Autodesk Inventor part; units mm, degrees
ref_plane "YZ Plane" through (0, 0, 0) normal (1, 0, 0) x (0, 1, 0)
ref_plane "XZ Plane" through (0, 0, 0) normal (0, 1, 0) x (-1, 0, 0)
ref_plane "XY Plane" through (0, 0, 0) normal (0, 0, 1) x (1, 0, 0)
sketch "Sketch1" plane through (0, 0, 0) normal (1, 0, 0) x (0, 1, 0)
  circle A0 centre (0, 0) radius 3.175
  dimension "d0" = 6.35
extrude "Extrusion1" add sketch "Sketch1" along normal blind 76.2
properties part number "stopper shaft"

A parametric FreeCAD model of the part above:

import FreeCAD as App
import Part
import Sketcher
from FreeCAD import Vector
Q = App.Units.Quantity

doc = App.newDocument("Part")
params = doc.addObject("Spreadsheet::Sheet", "Params")
for row, (alias, value) in enumerate([
    ("sketch1_diameter", "0.25 in"),
    ("pad1_length", "3 in"),
], start=1):
    params.set(f"A{row}", alias)
    params.set(f"B{row}", "=" + value)
    params.setAlias(f"B{row}", alias)

body = doc.addObject("PartDesign::Body", "Body")

# Sketch on YZ plane
sketch1 = doc.addObject("Sketcher::SketchObject", "Sketch")
body.addObject(sketch1)
sketch1.AttachmentSupport = (doc.YZ_Plane, [""])
sketch1.MapMode = "FlatFace"
sketch1.addGeometry(Part.Circle(Vector(0, 0, 0), Vector(0, 0, 1), 3.175), False)
sketch1.addConstraint([
    Sketcher.Constraint("Coincident", 0, 3, -1, 1),
    Sketcher.Constraint("Diameter", 0, Q("0.25 in")),
])
sketch1.setExpression("Constraints[1]", "Params.sketch1_diameter")
pad1 = doc.addObject("PartDesign::Pad", "Pad")
body.addObject(pad1)
pad1.Profile = sketch1
pad1.setExpression("Length", "Params.pad1_length")

doc.recompute()
